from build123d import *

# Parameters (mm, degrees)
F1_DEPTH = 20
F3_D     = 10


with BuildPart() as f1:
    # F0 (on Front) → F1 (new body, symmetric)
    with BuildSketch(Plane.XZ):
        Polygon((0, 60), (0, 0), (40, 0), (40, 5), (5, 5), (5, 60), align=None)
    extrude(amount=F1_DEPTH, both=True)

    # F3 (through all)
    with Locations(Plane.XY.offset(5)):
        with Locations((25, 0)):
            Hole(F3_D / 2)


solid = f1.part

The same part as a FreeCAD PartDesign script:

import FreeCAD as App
import Part
import Sketcher

V = App.Vector
Q = App.Units.Quantity


def add_polygon(sketch, points):
    """Adds a closed chain of lines whose ends are joined by coincident constraints."""
    first, n = sketch.GeometryCount, len(points)
    for a, b in zip(points, points[1:] + points[:1]):
        sketch.addGeometry(Part.LineSegment(App.Vector(*a, 0), App.Vector(*b, 0)), False)
    for i in range(n):
        sketch.addConstraint(Sketcher.Constraint("Coincident", first + i, 2, first + (i + 1) % n, 1))

doc = App.newDocument("Part")
body = doc.addObject("PartDesign::Body", "Body")

sketch1 = body.newObject("Sketcher::SketchObject", "Sketch")
sketch1.AttachmentSupport = (doc.getObject("XZ_Plane"), [""])
sketch1.MapMode = "FlatFace"
add_polygon(sketch1, [(0, 60), (0, 0), (40, 0), (40, 5), (5, 5), (5, 60)])
sketch1.addConstraint([
    Sketcher.Constraint("Vertical", 0),
    Sketcher.Constraint("Horizontal", 1),
    Sketcher.Constraint("Vertical", 2),
    Sketcher.Constraint("Horizontal", 3),
    Sketcher.Constraint("Vertical", 4),
    Sketcher.Constraint("Horizontal", 5),
    Sketcher.Constraint("Coincident", 0, 2, -1, 1),
    Sketcher.Constraint("Equal", 5, 2),
    Sketcher.Constraint("DistanceX", 1, 1, 1, 2, Q("40 mm")),
    Sketcher.Constraint("DistanceX", 3, 2, 3, 1, Q("35 mm")),
    Sketcher.Constraint("DistanceY", 0, 2, 0, 1, Q("60 mm")),
])
pad1 = body.newObject("PartDesign::Pad", "Pad")
pad1.Profile = sketch1
pad1.Length = 40
pad1.Midplane = True

sketch2 = body.newObject("Sketcher::SketchObject", "Sketch001")
sketch2.AttachmentSupport = (doc.getObject("XY_Plane"), [""])
sketch2.MapMode = "FlatFace"
sketch2.AttachmentOffset = App.Placement(V(0, 0, 5), App.Rotation())
sketch2.addGeometry(Part.Circle(V(25, 0, 0), V(0, 0, 1), 5), False)
sketch2.addConstraint([
    Sketcher.Constraint("PointOnObject", 0, 3, -1),
    Sketcher.Constraint("Diameter", 0, Q("10 mm")),
    Sketcher.Constraint("DistanceX", -1, 1, 0, 3, Q("25 mm")),
])
doc.recompute()
hole = body.newObject("PartDesign::Hole", "Hole")
hole.Profile = sketch2
hole.ThreadType = "None"
hole.Diameter = 10
hole.DepthType = "ThroughAll"

doc.recompute()
